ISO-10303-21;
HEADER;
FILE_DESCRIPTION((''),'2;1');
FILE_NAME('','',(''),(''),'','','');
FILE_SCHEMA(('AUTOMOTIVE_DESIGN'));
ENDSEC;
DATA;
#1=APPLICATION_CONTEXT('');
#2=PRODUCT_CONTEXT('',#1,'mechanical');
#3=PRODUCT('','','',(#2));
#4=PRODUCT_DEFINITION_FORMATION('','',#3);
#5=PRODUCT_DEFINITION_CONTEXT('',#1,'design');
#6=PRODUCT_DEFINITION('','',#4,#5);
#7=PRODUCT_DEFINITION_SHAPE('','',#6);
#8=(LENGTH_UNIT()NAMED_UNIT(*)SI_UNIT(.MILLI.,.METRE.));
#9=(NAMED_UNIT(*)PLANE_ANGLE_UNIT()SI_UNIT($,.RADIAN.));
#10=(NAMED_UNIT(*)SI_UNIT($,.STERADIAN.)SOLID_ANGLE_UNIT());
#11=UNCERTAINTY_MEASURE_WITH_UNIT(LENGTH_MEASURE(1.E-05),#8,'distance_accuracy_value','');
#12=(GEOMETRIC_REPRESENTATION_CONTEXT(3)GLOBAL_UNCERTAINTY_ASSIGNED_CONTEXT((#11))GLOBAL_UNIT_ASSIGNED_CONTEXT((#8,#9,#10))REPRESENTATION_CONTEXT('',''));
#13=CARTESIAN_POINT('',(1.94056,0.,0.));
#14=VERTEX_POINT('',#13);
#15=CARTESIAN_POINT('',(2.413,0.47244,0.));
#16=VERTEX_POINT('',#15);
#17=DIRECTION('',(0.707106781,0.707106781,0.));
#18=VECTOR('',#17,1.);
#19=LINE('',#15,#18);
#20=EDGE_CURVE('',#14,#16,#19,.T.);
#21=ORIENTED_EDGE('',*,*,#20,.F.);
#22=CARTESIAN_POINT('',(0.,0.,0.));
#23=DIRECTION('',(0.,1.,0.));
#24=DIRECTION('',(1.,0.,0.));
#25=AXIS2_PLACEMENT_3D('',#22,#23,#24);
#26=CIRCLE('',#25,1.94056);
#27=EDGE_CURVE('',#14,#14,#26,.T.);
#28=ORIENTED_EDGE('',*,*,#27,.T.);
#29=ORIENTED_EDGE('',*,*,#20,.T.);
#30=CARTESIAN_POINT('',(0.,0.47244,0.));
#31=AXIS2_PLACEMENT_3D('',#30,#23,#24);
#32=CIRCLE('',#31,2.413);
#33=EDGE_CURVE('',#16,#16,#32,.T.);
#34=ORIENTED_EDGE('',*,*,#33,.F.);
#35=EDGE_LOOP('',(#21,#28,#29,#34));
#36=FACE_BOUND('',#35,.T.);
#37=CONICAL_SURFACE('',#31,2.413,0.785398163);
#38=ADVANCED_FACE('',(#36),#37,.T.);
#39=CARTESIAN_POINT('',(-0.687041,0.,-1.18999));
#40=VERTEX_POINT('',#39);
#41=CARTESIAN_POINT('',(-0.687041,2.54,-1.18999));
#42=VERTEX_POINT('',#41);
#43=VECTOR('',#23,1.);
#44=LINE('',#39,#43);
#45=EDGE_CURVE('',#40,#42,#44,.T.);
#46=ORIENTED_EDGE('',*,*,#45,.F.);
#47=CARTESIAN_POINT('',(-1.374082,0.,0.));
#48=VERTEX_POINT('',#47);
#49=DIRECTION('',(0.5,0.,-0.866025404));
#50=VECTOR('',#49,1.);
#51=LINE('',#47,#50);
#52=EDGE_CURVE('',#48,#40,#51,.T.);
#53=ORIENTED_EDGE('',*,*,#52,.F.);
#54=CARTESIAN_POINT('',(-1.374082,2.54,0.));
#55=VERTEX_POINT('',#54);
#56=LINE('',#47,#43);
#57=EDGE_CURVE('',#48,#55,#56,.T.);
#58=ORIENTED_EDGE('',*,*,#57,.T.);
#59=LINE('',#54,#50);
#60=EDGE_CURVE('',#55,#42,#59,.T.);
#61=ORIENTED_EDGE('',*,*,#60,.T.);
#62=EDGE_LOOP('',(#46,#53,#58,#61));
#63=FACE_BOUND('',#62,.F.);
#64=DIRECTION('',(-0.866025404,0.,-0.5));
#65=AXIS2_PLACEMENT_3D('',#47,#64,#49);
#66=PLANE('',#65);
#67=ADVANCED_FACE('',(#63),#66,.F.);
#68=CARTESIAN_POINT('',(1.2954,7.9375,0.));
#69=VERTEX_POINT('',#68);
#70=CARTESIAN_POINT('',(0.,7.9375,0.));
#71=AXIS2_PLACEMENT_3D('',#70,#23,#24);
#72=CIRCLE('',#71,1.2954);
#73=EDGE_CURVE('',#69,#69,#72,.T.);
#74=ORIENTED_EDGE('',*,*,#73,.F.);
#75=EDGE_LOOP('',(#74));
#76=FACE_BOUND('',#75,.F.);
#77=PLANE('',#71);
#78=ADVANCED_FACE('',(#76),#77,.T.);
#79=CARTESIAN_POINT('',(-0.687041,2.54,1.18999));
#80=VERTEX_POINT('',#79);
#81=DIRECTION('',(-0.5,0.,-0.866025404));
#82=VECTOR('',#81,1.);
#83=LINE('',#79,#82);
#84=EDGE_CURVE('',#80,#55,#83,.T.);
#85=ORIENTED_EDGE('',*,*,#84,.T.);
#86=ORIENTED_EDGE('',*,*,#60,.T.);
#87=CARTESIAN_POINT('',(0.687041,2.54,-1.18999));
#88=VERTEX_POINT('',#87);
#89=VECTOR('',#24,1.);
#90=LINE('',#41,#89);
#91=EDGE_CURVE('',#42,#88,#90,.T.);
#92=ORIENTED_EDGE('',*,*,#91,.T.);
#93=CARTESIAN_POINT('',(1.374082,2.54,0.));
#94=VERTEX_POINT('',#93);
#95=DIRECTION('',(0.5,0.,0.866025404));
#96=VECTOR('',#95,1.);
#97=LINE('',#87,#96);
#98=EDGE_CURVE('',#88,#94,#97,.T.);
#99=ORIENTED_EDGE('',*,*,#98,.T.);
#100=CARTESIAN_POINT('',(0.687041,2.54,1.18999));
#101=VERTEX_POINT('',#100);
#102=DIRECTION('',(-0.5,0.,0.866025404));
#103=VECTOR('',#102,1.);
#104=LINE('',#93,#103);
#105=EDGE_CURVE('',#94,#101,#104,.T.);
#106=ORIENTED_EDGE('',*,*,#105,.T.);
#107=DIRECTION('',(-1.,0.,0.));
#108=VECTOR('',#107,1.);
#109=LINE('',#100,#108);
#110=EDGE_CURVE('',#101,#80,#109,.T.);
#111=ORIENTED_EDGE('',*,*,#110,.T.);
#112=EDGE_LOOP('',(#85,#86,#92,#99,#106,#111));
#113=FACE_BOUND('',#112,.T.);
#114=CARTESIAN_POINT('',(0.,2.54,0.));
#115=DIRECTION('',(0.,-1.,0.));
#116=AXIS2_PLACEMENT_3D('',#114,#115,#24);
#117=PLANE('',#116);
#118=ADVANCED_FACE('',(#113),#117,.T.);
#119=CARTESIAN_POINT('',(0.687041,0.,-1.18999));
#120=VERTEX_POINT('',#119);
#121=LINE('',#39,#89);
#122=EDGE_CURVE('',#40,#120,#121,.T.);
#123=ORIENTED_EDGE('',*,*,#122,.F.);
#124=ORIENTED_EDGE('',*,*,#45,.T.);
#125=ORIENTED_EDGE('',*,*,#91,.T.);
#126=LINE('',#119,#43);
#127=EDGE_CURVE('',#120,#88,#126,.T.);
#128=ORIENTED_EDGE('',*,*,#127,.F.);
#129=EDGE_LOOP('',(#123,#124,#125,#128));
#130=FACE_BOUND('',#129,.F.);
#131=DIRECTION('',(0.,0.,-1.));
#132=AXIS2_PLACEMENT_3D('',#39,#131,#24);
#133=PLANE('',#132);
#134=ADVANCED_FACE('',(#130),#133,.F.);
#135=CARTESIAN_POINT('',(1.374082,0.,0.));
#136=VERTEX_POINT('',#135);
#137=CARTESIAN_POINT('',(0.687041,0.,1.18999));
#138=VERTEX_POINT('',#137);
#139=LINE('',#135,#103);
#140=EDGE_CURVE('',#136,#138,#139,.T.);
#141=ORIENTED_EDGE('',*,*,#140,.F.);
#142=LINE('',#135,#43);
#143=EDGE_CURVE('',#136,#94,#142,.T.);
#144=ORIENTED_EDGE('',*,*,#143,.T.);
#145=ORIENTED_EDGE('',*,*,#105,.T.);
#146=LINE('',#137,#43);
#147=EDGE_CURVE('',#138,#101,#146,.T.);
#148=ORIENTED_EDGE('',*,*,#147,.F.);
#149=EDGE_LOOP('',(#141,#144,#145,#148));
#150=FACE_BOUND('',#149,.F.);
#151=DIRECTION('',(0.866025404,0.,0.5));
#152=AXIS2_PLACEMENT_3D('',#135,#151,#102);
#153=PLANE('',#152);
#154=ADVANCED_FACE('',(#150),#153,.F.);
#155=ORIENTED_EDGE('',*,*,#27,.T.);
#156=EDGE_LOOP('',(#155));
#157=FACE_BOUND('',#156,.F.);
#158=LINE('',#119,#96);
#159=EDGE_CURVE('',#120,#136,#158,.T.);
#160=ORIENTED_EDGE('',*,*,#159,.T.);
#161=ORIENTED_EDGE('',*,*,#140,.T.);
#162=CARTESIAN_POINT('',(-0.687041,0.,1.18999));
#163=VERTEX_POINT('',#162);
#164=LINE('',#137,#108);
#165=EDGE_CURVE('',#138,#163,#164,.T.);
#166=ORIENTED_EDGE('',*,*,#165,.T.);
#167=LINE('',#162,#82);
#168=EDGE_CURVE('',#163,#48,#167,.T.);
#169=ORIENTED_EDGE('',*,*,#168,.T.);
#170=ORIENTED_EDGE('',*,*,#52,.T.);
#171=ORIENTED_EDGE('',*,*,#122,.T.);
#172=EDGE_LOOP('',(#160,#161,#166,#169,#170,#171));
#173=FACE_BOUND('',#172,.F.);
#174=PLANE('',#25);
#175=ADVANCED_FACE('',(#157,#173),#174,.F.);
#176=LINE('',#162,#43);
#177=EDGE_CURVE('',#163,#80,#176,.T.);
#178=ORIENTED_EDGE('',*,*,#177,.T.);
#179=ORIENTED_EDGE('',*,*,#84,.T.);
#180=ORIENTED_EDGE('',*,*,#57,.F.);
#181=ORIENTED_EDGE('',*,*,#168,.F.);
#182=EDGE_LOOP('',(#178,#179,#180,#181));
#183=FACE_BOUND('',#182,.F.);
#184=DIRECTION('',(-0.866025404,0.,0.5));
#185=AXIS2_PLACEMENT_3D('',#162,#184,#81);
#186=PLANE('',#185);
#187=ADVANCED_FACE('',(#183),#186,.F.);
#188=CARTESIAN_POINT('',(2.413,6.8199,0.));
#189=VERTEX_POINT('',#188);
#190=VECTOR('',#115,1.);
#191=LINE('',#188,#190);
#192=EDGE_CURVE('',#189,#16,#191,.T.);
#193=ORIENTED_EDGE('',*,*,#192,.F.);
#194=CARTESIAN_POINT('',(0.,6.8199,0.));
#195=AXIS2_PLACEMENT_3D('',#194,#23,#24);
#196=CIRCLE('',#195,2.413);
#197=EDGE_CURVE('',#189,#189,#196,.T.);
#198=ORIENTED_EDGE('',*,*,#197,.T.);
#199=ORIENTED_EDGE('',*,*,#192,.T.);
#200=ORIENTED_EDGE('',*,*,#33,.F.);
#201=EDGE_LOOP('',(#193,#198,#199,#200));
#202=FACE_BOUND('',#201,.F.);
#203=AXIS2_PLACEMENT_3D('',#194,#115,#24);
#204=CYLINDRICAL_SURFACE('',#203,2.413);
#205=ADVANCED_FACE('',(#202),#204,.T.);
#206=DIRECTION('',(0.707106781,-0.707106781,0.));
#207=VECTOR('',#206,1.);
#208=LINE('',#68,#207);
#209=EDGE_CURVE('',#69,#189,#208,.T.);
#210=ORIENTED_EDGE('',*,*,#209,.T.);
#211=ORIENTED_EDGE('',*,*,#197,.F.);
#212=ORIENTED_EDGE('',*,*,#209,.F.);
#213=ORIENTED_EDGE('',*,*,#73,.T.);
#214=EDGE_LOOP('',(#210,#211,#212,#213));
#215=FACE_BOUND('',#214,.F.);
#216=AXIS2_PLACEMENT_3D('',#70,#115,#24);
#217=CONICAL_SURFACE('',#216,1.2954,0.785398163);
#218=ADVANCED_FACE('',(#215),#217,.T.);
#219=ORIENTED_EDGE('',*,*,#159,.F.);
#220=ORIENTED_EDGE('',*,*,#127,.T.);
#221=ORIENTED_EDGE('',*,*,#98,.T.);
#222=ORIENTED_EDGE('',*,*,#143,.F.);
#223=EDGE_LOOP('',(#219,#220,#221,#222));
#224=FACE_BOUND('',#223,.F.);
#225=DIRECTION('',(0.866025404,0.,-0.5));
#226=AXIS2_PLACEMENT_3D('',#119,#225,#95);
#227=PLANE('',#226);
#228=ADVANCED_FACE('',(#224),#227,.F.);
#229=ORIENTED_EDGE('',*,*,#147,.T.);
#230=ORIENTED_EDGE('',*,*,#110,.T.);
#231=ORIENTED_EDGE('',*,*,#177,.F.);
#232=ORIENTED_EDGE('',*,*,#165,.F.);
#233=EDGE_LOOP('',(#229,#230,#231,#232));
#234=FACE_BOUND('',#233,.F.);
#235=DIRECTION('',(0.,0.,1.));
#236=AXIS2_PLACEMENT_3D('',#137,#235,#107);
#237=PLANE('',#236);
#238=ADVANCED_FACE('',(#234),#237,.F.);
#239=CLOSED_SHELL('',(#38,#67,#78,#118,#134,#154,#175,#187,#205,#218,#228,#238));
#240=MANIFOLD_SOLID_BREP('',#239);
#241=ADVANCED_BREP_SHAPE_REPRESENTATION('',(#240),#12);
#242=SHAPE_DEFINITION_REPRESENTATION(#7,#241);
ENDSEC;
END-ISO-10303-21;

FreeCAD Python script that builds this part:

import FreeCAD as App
import Part
import Sketcher
from FreeCAD import Vector
Q = App.Units.Quantity


def edges_at(feature, points):
    """Names of the edges that pass closest to the given points."""
    edges = feature.Shape.Edges
    near = lambda p: min(range(len(edges)), key=lambda i: edges[i].distToShape(Part.Vertex(*p))[0])
    return sorted({f"Edge{near(p) + 1}" for p in points})


def add_polygon(sketch, points):
    """Adds a closed chain of lines whose ends are joined by coincident constraints."""
    first, n = sketch.GeometryCount, len(points)
    for a, b in zip(points, points[1:] + points[:1]):
        sketch.addGeometry(Part.LineSegment(App.Vector(*a, 0), App.Vector(*b, 0)), False)
    for i in range(n):
        sketch.addConstraint(Sketcher.Constraint("Coincident", first + i, 2, first + (i + 1) % n, 1))

doc = App.newDocument("Part")
body = doc.addObject("PartDesign::Body", "Body")

# Sketch on XY plane
sketch1 = body.newObject("Sketcher::SketchObject", "Sketch")
sketch1.AttachmentSupport = (doc.getObject("XY_Plane"), [""])
sketch1.MapMode = "FlatFace"
add_polygon(sketch1, [(2.4, 0), (0, 0), (0, 7.9), (1.3, 7.9), (2.4, 6.8)])  # lines 0-4
sketch1.addConstraint([
    Sketcher.Constraint("Horizontal", 0),
    Sketcher.Constraint("Vertical", 1),
    Sketcher.Constraint("Horizontal", 2),
    Sketcher.Constraint("Vertical", 4),
    Sketcher.Constraint("Coincident", 0, 2, -1, 1),
    Sketcher.Constraint("Angle", 3, Q("-45 deg")),
    Sketcher.Constraint("DistanceX", 0, 2, 0, 1, Q("0.095 in")),
    Sketcher.Constraint("DistanceX", 2, 1, 2, 2, Q("0.051 in")),
    Sketcher.Constraint("DistanceY", 1, 1, 1, 2, Q("0.3125 in")),
])
revolution = body.newObject("PartDesign::Revolution", "Revolution")
revolution.Profile = sketch1
revolution.ReferenceAxis = (sketch1, ["V_Axis"])
revolution.Angle = 360

# Sketch on XZ plane
sketch2 = body.newObject("Sketcher::SketchObject", "Sketch001")
sketch2.AttachmentSupport = (doc.getObject("XZ_Plane"), [""])
sketch2.MapMode = "FlatFace"
add_polygon(sketch2, [(-0.7, 1.2), (-1.4, 0), (-0.7, -1.2), (0.7, -1.2), (1.4, 0), (0.7, 1.2)])  # lines 0-5
sketch2.addConstraint([
    Sketcher.Constraint("Horizontal", 2),
    Sketcher.Constraint("Horizontal", 5),
    Sketcher.Constraint("Symmetric", 0, 2, 3, 2, -1, 1),
    Sketcher.Constraint("Symmetric", 1, 2, 4, 2, -1, 1),
    Sketcher.Constraint("PointOnObject", 0, 2, -1),
    Sketcher.Constraint("Parallel", 0, 3),
    Sketcher.Constraint("Vertical", 2, 2, 4, 2),
    Sketcher.Constraint("Angle", 0, Q("-120 deg")),
    Sketcher.Constraint("DistanceY", 2, 2, 4, 2, Q("0.0937 in")),
    Sketcher.Constraint("DistanceX", 2, 1, 2, 2, Q("1.374082 mm")),
])
pocket1 = body.newObject("PartDesign::Pocket", "Pocket")
pocket1.Profile = sketch2
pocket1.Length = Q("0.1 in")
doc.recompute()

chamfer = body.newObject("PartDesign::Chamfer", "Chamfer")
chamfer.Base = (pocket1, edges_at(pocket1, [(-2.413, 0, 0)]))
chamfer.Size = Q("0.0186 in")

doc.recompute()
